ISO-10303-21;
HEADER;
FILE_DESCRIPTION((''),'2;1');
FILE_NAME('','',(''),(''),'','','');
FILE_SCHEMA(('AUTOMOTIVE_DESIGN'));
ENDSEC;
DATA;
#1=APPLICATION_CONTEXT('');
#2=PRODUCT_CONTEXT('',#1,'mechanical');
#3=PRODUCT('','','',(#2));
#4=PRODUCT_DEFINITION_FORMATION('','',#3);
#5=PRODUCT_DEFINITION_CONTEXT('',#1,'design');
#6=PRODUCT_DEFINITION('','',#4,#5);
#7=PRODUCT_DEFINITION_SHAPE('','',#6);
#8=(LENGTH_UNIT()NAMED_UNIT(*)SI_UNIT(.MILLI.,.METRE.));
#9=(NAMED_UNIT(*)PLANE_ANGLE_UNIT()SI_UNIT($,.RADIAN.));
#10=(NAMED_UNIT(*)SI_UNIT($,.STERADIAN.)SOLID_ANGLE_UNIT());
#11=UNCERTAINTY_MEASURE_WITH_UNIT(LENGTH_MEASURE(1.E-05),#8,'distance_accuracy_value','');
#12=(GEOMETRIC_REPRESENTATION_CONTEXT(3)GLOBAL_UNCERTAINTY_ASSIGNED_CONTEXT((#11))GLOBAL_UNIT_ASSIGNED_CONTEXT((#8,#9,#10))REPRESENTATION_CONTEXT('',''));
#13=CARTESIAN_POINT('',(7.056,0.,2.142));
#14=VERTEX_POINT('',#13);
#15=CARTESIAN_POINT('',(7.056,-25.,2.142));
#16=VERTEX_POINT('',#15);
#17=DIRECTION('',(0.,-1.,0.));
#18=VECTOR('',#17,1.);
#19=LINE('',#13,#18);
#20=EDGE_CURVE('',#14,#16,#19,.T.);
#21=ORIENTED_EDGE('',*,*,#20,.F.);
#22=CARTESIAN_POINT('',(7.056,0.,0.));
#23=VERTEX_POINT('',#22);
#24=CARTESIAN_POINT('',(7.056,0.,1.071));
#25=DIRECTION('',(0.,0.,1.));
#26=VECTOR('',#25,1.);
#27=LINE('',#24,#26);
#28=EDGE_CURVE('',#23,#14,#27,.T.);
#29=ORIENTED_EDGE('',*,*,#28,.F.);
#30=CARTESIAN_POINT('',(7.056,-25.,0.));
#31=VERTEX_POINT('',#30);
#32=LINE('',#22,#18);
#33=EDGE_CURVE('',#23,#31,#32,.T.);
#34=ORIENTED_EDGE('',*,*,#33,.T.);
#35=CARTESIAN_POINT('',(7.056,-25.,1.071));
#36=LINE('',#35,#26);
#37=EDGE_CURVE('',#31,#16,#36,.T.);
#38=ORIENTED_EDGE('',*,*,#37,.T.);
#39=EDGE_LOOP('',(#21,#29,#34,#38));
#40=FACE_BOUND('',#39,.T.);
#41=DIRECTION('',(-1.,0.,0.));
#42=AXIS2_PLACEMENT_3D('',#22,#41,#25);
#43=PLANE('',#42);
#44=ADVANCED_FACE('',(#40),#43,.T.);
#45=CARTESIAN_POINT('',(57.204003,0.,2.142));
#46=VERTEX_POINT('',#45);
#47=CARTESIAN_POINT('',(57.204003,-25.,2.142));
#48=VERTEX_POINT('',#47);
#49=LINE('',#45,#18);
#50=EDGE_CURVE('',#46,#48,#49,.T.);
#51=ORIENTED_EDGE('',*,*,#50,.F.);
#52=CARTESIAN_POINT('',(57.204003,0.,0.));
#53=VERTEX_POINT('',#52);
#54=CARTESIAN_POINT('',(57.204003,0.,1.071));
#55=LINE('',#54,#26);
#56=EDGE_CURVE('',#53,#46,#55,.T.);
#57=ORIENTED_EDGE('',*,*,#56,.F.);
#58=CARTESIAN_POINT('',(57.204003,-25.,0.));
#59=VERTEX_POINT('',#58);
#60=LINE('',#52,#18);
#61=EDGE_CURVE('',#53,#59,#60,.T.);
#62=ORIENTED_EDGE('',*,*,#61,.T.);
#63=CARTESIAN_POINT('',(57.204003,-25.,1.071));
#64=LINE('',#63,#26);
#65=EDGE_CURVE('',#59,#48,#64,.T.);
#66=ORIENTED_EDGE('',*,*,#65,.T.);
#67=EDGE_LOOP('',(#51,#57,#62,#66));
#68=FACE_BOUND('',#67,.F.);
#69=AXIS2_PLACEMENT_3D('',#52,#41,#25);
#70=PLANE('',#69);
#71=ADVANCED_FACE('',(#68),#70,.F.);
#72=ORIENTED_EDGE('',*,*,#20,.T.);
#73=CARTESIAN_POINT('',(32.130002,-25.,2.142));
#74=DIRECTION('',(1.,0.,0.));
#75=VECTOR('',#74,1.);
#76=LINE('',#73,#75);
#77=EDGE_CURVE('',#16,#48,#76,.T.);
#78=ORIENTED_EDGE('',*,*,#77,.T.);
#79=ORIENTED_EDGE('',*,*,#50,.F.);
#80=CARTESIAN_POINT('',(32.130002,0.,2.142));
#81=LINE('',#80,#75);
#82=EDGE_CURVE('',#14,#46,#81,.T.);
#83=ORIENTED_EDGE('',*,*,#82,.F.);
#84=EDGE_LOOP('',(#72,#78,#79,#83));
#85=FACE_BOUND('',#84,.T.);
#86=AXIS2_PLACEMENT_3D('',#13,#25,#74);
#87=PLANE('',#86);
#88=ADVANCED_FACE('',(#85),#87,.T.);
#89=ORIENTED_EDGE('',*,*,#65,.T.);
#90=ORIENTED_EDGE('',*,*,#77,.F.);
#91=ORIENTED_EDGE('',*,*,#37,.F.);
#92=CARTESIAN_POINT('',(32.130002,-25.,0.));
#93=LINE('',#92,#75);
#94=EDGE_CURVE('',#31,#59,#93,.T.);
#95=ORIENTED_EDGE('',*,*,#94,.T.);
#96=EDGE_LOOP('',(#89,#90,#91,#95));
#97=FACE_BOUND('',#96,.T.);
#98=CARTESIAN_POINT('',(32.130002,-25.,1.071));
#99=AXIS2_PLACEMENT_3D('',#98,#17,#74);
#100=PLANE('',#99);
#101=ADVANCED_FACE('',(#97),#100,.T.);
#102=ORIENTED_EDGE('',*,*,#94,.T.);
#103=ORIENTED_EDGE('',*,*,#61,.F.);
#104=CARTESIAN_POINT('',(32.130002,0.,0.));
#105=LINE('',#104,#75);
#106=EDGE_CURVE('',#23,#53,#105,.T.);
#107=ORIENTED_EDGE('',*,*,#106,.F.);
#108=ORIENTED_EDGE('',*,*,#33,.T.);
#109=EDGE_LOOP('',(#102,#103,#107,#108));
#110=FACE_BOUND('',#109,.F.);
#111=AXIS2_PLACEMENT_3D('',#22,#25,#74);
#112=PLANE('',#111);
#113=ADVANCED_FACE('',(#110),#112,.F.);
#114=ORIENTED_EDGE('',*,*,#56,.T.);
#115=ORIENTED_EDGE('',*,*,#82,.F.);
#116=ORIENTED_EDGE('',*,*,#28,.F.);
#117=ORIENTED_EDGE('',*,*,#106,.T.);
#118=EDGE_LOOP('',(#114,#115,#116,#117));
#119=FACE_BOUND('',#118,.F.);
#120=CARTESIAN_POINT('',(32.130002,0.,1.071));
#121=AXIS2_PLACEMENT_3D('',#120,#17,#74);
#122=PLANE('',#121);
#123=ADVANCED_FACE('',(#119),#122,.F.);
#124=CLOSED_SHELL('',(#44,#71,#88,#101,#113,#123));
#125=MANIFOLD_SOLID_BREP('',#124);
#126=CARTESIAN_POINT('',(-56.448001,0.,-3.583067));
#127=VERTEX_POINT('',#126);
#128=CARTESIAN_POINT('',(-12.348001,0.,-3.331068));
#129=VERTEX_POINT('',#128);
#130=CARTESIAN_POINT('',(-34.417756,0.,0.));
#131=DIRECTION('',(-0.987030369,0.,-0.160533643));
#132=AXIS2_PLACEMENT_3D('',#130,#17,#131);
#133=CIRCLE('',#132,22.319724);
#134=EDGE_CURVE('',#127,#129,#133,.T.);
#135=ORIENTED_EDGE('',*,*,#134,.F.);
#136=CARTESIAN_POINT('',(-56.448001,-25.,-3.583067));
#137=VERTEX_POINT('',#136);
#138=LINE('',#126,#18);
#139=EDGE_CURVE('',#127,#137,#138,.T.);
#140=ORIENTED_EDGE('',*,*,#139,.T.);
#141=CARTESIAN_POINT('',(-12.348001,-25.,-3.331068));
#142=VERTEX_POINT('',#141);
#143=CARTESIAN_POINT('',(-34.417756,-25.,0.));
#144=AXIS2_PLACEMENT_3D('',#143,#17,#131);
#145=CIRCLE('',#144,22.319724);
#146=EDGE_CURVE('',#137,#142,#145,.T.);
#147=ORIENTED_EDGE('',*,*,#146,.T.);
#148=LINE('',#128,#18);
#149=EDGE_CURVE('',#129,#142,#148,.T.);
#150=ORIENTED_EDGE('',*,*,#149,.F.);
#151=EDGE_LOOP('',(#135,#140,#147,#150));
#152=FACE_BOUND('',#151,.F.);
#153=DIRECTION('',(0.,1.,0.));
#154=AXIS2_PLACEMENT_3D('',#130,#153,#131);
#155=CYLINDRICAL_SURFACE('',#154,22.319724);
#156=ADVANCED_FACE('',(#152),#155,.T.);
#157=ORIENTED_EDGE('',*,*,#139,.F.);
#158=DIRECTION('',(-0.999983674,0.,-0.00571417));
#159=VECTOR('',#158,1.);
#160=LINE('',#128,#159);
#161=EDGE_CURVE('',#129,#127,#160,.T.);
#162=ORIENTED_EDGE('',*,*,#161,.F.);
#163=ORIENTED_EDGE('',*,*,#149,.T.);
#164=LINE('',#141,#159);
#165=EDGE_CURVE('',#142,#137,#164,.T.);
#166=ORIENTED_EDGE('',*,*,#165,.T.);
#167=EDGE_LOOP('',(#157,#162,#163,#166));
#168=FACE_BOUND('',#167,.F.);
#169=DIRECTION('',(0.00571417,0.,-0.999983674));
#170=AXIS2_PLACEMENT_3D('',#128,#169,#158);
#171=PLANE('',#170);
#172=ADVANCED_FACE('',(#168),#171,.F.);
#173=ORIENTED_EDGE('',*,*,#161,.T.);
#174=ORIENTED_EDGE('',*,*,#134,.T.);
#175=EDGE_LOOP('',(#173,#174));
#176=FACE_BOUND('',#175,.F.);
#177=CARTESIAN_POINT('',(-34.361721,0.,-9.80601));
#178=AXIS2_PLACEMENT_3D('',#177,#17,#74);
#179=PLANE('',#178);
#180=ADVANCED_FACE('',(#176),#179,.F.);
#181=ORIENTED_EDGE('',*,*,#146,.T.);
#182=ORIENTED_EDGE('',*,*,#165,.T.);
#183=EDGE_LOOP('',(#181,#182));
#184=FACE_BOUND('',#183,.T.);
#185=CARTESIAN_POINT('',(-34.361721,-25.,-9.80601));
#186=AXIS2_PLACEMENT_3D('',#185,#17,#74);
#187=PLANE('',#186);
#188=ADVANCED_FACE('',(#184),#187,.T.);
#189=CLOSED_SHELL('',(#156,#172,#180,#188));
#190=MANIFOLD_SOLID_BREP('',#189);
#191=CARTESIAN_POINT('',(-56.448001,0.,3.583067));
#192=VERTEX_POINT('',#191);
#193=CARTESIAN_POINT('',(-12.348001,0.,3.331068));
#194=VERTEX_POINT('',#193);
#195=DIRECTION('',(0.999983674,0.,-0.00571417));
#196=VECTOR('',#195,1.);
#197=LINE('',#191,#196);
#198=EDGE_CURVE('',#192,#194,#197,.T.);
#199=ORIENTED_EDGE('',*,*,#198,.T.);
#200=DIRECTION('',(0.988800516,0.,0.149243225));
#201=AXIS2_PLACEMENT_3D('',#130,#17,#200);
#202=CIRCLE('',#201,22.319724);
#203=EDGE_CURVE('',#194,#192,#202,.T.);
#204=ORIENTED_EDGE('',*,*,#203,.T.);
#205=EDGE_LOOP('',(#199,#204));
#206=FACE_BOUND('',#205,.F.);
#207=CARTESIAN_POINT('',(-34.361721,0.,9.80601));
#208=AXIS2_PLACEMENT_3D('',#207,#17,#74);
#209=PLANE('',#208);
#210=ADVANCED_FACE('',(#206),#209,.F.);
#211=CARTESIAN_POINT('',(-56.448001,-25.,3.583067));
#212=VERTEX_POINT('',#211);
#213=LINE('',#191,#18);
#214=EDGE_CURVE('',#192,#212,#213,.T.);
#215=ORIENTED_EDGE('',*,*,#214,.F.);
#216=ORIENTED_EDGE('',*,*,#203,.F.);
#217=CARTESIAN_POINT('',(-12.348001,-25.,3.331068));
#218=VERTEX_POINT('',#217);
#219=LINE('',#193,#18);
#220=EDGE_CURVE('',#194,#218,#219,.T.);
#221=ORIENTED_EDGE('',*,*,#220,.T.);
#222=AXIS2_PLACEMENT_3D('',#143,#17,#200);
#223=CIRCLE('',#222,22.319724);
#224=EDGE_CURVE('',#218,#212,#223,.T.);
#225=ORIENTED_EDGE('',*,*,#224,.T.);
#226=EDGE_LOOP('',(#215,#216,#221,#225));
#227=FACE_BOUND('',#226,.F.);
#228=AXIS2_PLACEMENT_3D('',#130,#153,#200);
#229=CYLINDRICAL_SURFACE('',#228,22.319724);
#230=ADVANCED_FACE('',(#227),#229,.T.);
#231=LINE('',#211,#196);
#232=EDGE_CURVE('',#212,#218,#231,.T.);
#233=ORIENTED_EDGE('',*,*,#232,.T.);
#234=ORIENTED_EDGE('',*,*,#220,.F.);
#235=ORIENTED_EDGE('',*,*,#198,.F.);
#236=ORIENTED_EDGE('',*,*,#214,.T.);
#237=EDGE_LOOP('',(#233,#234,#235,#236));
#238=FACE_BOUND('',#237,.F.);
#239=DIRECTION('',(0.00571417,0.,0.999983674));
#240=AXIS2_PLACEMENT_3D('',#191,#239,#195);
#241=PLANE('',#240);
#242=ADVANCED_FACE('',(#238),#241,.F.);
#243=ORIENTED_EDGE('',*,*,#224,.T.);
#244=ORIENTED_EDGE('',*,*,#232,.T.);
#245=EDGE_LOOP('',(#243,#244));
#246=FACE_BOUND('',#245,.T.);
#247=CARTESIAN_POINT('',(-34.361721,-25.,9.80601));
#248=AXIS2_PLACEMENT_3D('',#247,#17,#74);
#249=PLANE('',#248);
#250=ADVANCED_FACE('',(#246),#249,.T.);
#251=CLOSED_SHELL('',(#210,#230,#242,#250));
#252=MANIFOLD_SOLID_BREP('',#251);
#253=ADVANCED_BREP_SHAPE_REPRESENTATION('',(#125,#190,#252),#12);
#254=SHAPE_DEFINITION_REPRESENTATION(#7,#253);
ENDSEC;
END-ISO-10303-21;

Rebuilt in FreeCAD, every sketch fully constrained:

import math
import FreeCAD as App
import Part
import Sketcher
from FreeCAD import Vector
Q = App.Units.Quantity

doc = App.newDocument("Part")
body = doc.addObject("PartDesign::Body", "Body")
body.AllowCompound = True

sketch1 = doc.addObject("Sketcher::SketchObject", "Sketch")
body.addObject(sketch1)
sketch1.AttachmentSupport = (doc.XZ_Plane, [""])
sketch1.MapMode = "FlatFace"
sketch1.addGeometry([
    Part.LineSegment(Vector(-56.448001, 3.583067, 0), Vector(-12.348001, 3.331068, 0)),
    Part.ArcOfCircle(Part.Circle(Vector(-34.417756, 0, 0), Vector(0, 0, 1), 22.319724), math.radians(8.583073), math.radians(170.762128)),
    Part.LineSegment(Vector(-12.348001, -3.331068, 0), Vector(-56.448001, -3.583067, 0)),
    Part.ArcOfCircle(Part.Circle(Vector(-34.417756, 0, 0), Vector(0, 0, 1), 22.319724), math.radians(-170.762128), math.radians(-8.583073)),
    Part.LineSegment(Vector(7.056, 2.142, 0), Vector(7.056, 0, 0)),
    Part.LineSegment(Vector(7.056, 0, 0), Vector(57.204003, 0, 0)),
    Part.LineSegment(Vector(57.204003, 0, 0), Vector(57.204003, 2.142, 0)),
    Part.LineSegment(Vector(57.204003, 2.142, 0), Vector(7.056, 2.142, 0)),
], False)
sketch1.addConstraint([
    Sketcher.Constraint("Coincident", 0, 1, 1, 2),
    Sketcher.Constraint("Coincident", 1, 1, 0, 2),
    Sketcher.Constraint("Coincident", 2, 1, 3, 2),
    Sketcher.Constraint("Coincident", 3, 1, 2, 2),
    Sketcher.Constraint("Coincident", 4, 2, 5, 1),
    Sketcher.Constraint("Coincident", 5, 2, 6, 1),
    Sketcher.Constraint("Coincident", 6, 2, 7, 1),
    Sketcher.Constraint("Coincident", 7, 2, 4, 1),
    Sketcher.Constraint("Vertical", 4),
    Sketcher.Constraint("Horizontal", 5),
    Sketcher.Constraint("Vertical", 6),
    Sketcher.Constraint("Horizontal", 7),
    Sketcher.Constraint("Coincident", 3, 3, 1, 3),
    Sketcher.Constraint("Equal", 1, 3),
    Sketcher.Constraint("Symmetric", 1, 1, 2, 1, -1),
    Sketcher.Constraint("PointOnObject", 4, 2, -1),
    Sketcher.Constraint("Vertical", 0, 1, 3, 1),
    Sketcher.Constraint("DistanceX", 0, 1, 1, 1, Q("44.1 mm")),
    Sketcher.Constraint("DistanceY", 4, 2, 4, 1, Q("2.142 mm")),
    Sketcher.Constraint("DistanceX", 0, 1, -1, 1, Q("56.448001 mm")),
    Sketcher.Constraint("DistanceX", -1, 1, 4, 2, Q("7.056 mm")),
    Sketcher.Constraint("Radius", 1, Q("22.319724 mm")),
    Sketcher.Constraint("DistanceY", 1, 1, 0, 1, Q("0.251999 mm")),
    Sketcher.Constraint("DistanceX", 5, 1, 5, 2, Q("50.148003 mm")),
])
pad1 = doc.addObject("PartDesign::Pad", "Pad")
body.addObject(pad1)
pad1.Profile = sketch1
pad1.Length = 25

doc.recompute()
